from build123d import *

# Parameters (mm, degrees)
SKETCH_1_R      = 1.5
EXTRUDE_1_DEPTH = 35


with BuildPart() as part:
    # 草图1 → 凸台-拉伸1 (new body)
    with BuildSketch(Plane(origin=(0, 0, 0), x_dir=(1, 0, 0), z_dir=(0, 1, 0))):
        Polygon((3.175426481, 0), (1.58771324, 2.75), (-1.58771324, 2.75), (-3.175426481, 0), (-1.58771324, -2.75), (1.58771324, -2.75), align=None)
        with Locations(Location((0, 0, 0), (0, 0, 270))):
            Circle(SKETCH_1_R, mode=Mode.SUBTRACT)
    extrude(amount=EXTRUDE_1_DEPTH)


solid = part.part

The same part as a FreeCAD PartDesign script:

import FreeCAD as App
import Part
import Sketcher

V = App.Vector
Q = App.Units.Quantity


def add_polygon(sketch, points):
    """Adds a closed chain of lines whose ends are joined by coincident constraints."""
    first, n = sketch.GeometryCount, len(points)
    for a, b in zip(points, points[1:] + points[:1]):
        sketch.addGeometry(Part.LineSegment(App.Vector(*a, 0), App.Vector(*b, 0)), False)
    for i in range(n):
        sketch.addConstraint(Sketcher.Constraint("Coincident", first + i, 2, first + (i + 1) % n, 1))

doc = App.newDocument("Part")
params = doc.addObject("Spreadsheet::Sheet", "Params")
for row, (alias, value) in enumerate([
    ("sketch1_diameter", "3 mm"),
    ("pad1_length", "35 mm"),
], start=1):
    params.set(f"A{row}", alias)
    params.set(f"B{row}", "=" + value)
    params.setAlias(f"B{row}", alias)

body = doc.addObject("PartDesign::Body", "Body")

# Sketch on XZ plane
sketch1 = doc.addObject("Sketcher::SketchObject", "Sketch")
body.addObject(sketch1)
sketch1.AttachmentSupport = (doc.XZ_Plane, [""])
sketch1.MapMode = "FlatFace"
add_polygon(sketch1, [(3.2, 0), (1.6, -2.8), (-1.6, -2.8), (-3.2, 0), (-1.6, 2.8), (1.6, 2.8)])  # lines 0-5
sketch1.addGeometry(Part.Circle(V(0, 0, 0), V(0, 0, 1), 1.5), False)  # 6
sketch1.addConstraint([
    Sketcher.Constraint("Horizontal", 1),
    Sketcher.Constraint("Horizontal", 4),
    Sketcher.Constraint("Coincident", 6, 3, -1, 1),
    Sketcher.Constraint("Symmetric", 0, 2, 3, 2, -1, 1),
    Sketcher.Constraint("Symmetric", 2, 2, 5, 2, -1, 1),
    Sketcher.Constraint("PointOnObject", 2, 2, -1),
    Sketcher.Constraint("Parallel", 2, 5),
    Sketcher.Constraint("Vertical", 1, 2, 3, 2),
    Sketcher.Constraint("Diameter", 6, Q("3 mm")),
    Sketcher.Constraint("Angle", 0, Q("-120 deg")),
    Sketcher.Constraint("DistanceY", 1, 2, 3, 2, Q("5.5 mm")),
    Sketcher.Constraint("DistanceX", 1, 2, 1, 1, Q("3.175426 mm")),
])
sketch1.setExpression("Constraints[14]", "Params.sketch1_diameter")
pad1 = doc.addObject("PartDesign::Pad", "Pad")
body.addObject(pad1)
pad1.Profile = sketch1
pad1.setExpression("Length", "Params.pad1_length")
pad1.Reversed = True

doc.recompute()
